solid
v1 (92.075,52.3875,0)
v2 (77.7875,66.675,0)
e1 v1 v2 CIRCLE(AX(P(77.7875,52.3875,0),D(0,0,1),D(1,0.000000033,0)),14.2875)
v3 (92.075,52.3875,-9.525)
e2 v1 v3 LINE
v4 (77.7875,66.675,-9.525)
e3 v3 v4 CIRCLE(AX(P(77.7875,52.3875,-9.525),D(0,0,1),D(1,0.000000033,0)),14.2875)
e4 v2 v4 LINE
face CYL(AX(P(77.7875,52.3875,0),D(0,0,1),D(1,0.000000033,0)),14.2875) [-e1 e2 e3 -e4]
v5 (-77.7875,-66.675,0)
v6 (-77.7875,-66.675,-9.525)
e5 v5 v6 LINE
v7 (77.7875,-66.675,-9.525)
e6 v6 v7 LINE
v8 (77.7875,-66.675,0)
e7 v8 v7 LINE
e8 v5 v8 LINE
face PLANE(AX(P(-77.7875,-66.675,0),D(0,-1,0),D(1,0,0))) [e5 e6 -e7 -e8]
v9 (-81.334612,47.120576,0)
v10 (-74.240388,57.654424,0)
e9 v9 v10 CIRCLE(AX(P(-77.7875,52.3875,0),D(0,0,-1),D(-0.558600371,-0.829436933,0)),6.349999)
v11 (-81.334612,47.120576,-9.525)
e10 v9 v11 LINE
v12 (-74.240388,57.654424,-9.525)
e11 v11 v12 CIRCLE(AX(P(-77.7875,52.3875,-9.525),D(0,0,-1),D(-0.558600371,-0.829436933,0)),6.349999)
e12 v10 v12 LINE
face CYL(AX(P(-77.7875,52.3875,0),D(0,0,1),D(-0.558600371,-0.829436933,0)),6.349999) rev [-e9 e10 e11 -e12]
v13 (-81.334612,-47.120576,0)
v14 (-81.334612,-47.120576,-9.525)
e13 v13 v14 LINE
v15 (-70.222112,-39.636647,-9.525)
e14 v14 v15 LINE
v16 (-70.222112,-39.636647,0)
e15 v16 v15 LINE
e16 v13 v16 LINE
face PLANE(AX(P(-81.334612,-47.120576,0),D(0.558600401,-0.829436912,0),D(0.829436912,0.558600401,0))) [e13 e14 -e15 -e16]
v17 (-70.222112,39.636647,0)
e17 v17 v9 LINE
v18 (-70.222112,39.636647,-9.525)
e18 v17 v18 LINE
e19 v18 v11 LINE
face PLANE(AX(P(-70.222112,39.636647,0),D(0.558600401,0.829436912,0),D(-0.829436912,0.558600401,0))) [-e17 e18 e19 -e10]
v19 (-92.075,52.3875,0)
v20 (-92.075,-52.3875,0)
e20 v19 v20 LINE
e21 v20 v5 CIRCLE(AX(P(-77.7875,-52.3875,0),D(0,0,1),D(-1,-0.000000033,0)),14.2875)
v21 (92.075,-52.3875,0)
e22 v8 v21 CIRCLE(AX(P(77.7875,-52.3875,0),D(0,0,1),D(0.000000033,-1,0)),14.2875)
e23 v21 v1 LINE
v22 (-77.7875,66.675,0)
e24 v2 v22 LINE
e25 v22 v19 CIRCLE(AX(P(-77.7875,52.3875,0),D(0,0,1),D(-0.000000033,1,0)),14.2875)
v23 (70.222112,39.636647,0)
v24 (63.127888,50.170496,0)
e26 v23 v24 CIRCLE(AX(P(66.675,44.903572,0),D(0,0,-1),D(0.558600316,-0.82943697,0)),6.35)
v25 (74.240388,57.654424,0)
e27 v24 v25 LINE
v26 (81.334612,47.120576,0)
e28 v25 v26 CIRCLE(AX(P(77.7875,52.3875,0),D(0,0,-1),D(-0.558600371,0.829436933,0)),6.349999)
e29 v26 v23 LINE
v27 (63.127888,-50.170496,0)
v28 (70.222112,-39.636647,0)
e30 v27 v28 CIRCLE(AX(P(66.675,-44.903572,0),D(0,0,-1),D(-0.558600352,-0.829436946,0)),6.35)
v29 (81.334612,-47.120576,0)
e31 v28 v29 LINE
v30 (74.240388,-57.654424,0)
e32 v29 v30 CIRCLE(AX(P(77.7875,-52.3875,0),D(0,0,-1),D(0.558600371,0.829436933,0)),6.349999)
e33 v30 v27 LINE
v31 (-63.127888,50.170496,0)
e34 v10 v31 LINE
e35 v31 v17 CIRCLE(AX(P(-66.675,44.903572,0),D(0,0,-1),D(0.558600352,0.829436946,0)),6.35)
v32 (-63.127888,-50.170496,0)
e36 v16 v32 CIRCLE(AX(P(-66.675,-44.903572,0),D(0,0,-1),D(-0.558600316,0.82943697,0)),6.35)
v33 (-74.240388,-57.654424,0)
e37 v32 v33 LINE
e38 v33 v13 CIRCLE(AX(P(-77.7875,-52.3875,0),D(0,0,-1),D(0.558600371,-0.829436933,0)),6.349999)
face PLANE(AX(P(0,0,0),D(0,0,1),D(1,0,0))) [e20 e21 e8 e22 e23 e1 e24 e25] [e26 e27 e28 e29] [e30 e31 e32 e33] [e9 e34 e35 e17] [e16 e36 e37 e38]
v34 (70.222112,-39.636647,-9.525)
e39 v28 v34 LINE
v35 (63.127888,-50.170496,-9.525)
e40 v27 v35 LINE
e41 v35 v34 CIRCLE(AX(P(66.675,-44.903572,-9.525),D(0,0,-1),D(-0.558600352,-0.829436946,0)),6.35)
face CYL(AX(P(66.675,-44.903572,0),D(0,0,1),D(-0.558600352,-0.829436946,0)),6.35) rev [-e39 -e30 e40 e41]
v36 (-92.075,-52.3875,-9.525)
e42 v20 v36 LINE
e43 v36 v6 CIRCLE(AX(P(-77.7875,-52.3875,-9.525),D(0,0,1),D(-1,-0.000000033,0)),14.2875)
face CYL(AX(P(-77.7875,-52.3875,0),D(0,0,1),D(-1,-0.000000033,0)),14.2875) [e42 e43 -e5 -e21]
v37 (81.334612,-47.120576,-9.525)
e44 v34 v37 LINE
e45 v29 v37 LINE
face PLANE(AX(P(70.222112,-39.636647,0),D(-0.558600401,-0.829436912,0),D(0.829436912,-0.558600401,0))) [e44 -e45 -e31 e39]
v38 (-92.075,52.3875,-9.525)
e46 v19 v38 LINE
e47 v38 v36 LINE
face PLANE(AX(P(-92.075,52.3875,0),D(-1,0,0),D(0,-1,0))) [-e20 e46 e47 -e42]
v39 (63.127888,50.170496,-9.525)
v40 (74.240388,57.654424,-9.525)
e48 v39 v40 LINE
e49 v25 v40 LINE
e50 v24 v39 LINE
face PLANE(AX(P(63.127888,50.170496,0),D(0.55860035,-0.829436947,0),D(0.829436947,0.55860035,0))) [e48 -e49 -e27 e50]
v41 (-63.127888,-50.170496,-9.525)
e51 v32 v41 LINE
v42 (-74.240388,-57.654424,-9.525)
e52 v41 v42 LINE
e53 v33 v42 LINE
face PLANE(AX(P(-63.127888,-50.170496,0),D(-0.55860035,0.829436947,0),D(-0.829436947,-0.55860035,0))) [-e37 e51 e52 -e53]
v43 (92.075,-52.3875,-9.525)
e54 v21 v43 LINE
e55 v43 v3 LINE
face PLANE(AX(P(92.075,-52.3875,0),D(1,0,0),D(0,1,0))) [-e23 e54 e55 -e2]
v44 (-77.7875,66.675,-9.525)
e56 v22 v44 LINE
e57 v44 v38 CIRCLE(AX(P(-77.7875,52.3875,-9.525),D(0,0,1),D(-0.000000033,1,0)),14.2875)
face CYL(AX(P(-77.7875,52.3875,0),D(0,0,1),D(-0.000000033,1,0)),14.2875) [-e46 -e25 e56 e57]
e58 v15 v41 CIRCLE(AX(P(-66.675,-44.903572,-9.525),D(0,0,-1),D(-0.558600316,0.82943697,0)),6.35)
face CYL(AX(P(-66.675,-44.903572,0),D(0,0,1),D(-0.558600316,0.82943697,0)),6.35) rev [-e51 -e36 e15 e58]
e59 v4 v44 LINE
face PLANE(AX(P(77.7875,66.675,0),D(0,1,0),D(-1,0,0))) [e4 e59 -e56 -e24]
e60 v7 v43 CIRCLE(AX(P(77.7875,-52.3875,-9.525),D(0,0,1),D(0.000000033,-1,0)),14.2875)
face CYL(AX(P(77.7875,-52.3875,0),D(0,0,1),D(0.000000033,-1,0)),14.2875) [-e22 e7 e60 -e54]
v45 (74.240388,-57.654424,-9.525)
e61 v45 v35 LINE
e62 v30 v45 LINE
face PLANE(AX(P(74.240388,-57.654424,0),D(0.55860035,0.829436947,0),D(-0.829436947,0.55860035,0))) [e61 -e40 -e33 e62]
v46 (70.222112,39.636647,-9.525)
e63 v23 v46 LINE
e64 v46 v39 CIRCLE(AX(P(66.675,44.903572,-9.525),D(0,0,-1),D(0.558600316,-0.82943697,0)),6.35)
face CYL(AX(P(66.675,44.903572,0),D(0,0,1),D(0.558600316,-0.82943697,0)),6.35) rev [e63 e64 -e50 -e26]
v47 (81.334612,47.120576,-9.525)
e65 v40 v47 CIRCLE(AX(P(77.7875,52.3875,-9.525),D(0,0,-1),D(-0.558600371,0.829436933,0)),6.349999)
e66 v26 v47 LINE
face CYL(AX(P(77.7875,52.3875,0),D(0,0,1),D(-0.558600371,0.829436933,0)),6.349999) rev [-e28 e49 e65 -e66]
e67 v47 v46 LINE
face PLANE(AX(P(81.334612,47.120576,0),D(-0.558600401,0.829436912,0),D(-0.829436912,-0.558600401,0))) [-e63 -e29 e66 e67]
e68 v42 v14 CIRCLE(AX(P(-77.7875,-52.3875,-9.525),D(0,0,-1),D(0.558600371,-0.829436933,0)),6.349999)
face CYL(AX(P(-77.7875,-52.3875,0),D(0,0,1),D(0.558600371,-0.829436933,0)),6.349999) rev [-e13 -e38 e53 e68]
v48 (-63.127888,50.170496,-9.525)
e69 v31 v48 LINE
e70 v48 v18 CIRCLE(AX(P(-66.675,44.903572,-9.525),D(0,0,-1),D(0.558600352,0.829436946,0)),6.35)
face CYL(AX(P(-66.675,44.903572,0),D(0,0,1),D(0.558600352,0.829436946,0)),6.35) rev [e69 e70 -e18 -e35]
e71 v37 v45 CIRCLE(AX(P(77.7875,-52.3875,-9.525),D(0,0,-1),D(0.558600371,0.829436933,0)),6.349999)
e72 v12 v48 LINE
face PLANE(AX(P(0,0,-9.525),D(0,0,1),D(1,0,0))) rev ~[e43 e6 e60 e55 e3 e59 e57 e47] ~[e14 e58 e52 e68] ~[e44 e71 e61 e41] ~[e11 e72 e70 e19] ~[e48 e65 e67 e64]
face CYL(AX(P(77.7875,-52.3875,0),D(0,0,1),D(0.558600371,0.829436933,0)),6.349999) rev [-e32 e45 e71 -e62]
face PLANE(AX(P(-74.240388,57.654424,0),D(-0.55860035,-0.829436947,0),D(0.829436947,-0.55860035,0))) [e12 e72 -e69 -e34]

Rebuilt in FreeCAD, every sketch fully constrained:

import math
import FreeCAD as App
import Part
import Sketcher
Q = App.Units.Quantity

doc = App.newDocument("Part")
body = doc.addObject("PartDesign::Body", "Body")

sketch1 = body.newObject("Sketcher::SketchObject", "Sketch")
sketch1.AttachmentSupport = (doc.getObject("XY_Plane"), [""])
sketch1.MapMode = "FlatFace"
sketch1.addGeometry(Part.LineSegment(App.Vector(-78, -67, 0), App.Vector(78, -67, 0)), False)
sketch1.addGeometry(Part.ArcOfCircle(Part.Circle(App.Vector(78, -52, 0), App.Vector(0, 0, 1), 14), math.radians(-90), math.radians(0)), False)
sketch1.addGeometry(Part.LineSegment(App.Vector(92, -52, 0), App.Vector(92, 52, 0)), False)
sketch1.addGeometry(Part.ArcOfCircle(Part.Circle(App.Vector(78, 52, 0), App.Vector(0, 0, 1), 14), math.radians(0), math.radians(90)), False)
sketch1.addGeometry(Part.LineSegment(App.Vector(78, 67, 0), App.Vector(-78, 67, 0)), False)
sketch1.addGeometry(Part.ArcOfCircle(Part.Circle(App.Vector(-78, 52, 0), App.Vector(0, 0, 1), 14), math.radians(90), math.radians(180)), False)
sketch1.addGeometry(Part.LineSegment(App.Vector(-92, 52, 0), App.Vector(-92, -52, 0)), False)
sketch1.addGeometry(Part.ArcOfCircle(Part.Circle(App.Vector(-78, -52, 0), App.Vector(0, 0, 1), 14), math.radians(-180), math.radians(-90)), False)
sketch1.addGeometry(Part.LineSegment(App.Vector(-63, -50, 0), App.Vector(-74, -58, 0)), False)
sketch1.addGeometry(Part.ArcOfCircle(Part.Circle(App.Vector(-78, -52, 0), App.Vector(0, 0, 1), 6), math.radians(124), math.radians(304)), False)
sketch1.addGeometry(Part.LineSegment(App.Vector(-81, -47, 0), App.Vector(-70, -40, 0)), False)
sketch1.addGeometry(Part.ArcOfCircle(Part.Circle(App.Vector(-67, -45, 0), App.Vector(0, 0, 1), 6), math.radians(-56), math.radians(124)), False)
sketch1.addGeometry(Part.LineSegment(App.Vector(70, -40, 0), App.Vector(81, -47, 0)), False)
sketch1.addGeometry(Part.ArcOfCircle(Part.Circle(App.Vector(78, -52, 0), App.Vector(0, 0, 1), 6), math.radians(-124), math.radians(56)), False)
sketch1.addGeometry(Part.LineSegment(App.Vector(74, -58, 0), App.Vector(63, -50, 0)), False)
sketch1.addGeometry(Part.ArcOfCircle(Part.Circle(App.Vector(67, -45, 0), App.Vector(0, 0, 1), 6), math.radians(56), math.radians(236)), False)
sketch1.addGeometry(Part.LineSegment(App.Vector(-70, 40, 0), App.Vector(-81, 47, 0)), False)
sketch1.addGeometry(Part.ArcOfCircle(Part.Circle(App.Vector(-78, 52, 0), App.Vector(0, 0, 1), 6), math.radians(56), math.radians(236)), False)
sketch1.addGeometry(Part.LineSegment(App.Vector(-74, 58, 0), App.Vector(-63, 50, 0)), False)
sketch1.addGeometry(Part.ArcOfCircle(Part.Circle(App.Vector(-67, 45, 0), App.Vector(0, 0, 1), 6), math.radians(-124), math.radians(56)), False)
sketch1.addGeometry(Part.LineSegment(App.Vector(63, 50, 0), App.Vector(74, 58, 0)), False)
sketch1.addGeometry(Part.ArcOfCircle(Part.Circle(App.Vector(78, 52, 0), App.Vector(0, 0, 1), 6), math.radians(-56), math.radians(124)), False)
sketch1.addGeometry(Part.LineSegment(App.Vector(81, 47, 0), App.Vector(70, 40, 0)), False)
sketch1.addGeometry(Part.ArcOfCircle(Part.Circle(App.Vector(67, 45, 0), App.Vector(0, 0, 1), 6), math.radians(124), math.radians(304)), False)
sketch1.addConstraint(Sketcher.Constraint("Tangent", 0, 2, 1, 1))
sketch1.addConstraint(Sketcher.Constraint("Tangent", 1, 2, 2, 1))
sketch1.addConstraint(Sketcher.Constraint("Tangent", 2, 2, 3, 1))
sketch1.addConstraint(Sketcher.Constraint("Tangent", 3, 2, 4, 1))
sketch1.addConstraint(Sketcher.Constraint("Tangent", 4, 2, 5, 1))
sketch1.addConstraint(Sketcher.Constraint("Tangent", 5, 2, 6, 1))
sketch1.addConstraint(Sketcher.Constraint("Tangent", 6, 2, 7, 1))
sketch1.addConstraint(Sketcher.Constraint("Tangent", 7, 2, 0, 1))
sketch1.addConstraint(Sketcher.Constraint("Tangent", 8, 2, 9, 2))
sketch1.addConstraint(Sketcher.Constraint("Tangent", 9, 1, 10, 1))
sketch1.addConstraint(Sketcher.Constraint("Tangent", 10, 2, 11, 2))
sketch1.addConstraint(Sketcher.Constraint("Tangent", 11, 1, 8, 1))
sketch1.addConstraint(Sketcher.Constraint("Tangent", 12, 2, 13, 2))
sketch1.addConstraint(Sketcher.Constraint("Tangent", 13, 1, 14, 1))
sketch1.addConstraint(Sketcher.Constraint("Tangent", 14, 2, 15, 2))
sketch1.addConstraint(Sketcher.Constraint("Tangent", 15, 1, 12, 1))
sketch1.addConstraint(Sketcher.Constraint("Tangent", 16, 2, 17, 2))
sketch1.addConstraint(Sketcher.Constraint("Tangent", 17, 1, 18, 1))
sketch1.addConstraint(Sketcher.Constraint("Tangent", 18, 2, 19, 2))
sketch1.addConstraint(Sketcher.Constraint("Tangent", 19, 1, 16, 1))
sketch1.addConstraint(Sketcher.Constraint("Tangent", 20, 2, 21, 2))
sketch1.addConstraint(Sketcher.Constraint("Tangent", 21, 1, 22, 1))
sketch1.addConstraint(Sketcher.Constraint("Tangent", 22, 2, 23, 2))
sketch1.addConstraint(Sketcher.Constraint("Tangent", 23, 1, 20, 1))
sketch1.addConstraint(Sketcher.Constraint("Horizontal", 0))
sketch1.addConstraint(Sketcher.Constraint("Vertical", 2))
sketch1.addConstraint(Sketcher.Constraint("Horizontal", 4))
sketch1.addConstraint(Sketcher.Constraint("Vertical", 6))
sketch1.addConstraint(Sketcher.Constraint("Coincident", 9, 3, 7, 3))
sketch1.addConstraint(Sketcher.Constraint("Coincident", 13, 3, 1, 3))
sketch1.addConstraint(Sketcher.Constraint("Coincident", 17, 3, 5, 3))
sketch1.addConstraint(Sketcher.Constraint("Coincident", 21, 3, 3, 3))
sketch1.addConstraint(Sketcher.Constraint("Equal", 1, 3))
sketch1.addConstraint(Sketcher.Constraint("Equal", 3, 5))
sketch1.addConstraint(Sketcher.Constraint("Equal", 5, 7))
sketch1.addConstraint(Sketcher.Constraint("Equal", 9, 11))
sketch1.addConstraint(Sketcher.Constraint("Equal", 11, 13))
sketch1.addConstraint(Sketcher.Constraint("Equal", 13, 15))
sketch1.addConstraint(Sketcher.Constraint("Equal", 15, 17))
sketch1.addConstraint(Sketcher.Constraint("Equal", 17, 19))
sketch1.addConstraint(Sketcher.Constraint("Equal", 19, 21))
sketch1.addConstraint(Sketcher.Constraint("Equal", 21, 23))
sketch1.addConstraint(Sketcher.Constraint("Symmetric", 1, 3, 5, 3, -1, 1))
sketch1.addConstraint(Sketcher.Constraint("Symmetric", 15, 3, 19, 3, -1, 1))
sketch1.addConstraint(Sketcher.Constraint("Symmetric", 11, 3, 23, 3, -1, 1))
sketch1.addConstraint(Sketcher.Constraint("Symmetric", 11, 3, 15, 3, -2))
sketch1.addConstraint(Sketcher.Constraint("Radius", 9, Q("0.25 in")))
sketch1.addConstraint(Sketcher.Constraint("Radius", 1, Q("0.5625 in")))
sketch1.addConstraint(Sketcher.Constraint("DistanceX", 15, 3, 1, 2, Q("1 in")))
sketch1.addConstraint(Sketcher.Constraint("DistanceX", 0, 1, 0, 2, Q("6.125 in")))
sketch1.addConstraint(Sketcher.Constraint("DistanceY", 2, 1, 2, 2, Q("4.125 in")))
sketch1.addConstraint(Sketcher.Constraint("DistanceX", 9, 1, 8, 2, Q("0.2793002 in")))
pad1 = body.newObject("PartDesign::Pad", "Pad")
pad1.Profile = sketch1
pad1.Length = Q("0.375 in")
pad1.Reversed = True

doc.recompute()
